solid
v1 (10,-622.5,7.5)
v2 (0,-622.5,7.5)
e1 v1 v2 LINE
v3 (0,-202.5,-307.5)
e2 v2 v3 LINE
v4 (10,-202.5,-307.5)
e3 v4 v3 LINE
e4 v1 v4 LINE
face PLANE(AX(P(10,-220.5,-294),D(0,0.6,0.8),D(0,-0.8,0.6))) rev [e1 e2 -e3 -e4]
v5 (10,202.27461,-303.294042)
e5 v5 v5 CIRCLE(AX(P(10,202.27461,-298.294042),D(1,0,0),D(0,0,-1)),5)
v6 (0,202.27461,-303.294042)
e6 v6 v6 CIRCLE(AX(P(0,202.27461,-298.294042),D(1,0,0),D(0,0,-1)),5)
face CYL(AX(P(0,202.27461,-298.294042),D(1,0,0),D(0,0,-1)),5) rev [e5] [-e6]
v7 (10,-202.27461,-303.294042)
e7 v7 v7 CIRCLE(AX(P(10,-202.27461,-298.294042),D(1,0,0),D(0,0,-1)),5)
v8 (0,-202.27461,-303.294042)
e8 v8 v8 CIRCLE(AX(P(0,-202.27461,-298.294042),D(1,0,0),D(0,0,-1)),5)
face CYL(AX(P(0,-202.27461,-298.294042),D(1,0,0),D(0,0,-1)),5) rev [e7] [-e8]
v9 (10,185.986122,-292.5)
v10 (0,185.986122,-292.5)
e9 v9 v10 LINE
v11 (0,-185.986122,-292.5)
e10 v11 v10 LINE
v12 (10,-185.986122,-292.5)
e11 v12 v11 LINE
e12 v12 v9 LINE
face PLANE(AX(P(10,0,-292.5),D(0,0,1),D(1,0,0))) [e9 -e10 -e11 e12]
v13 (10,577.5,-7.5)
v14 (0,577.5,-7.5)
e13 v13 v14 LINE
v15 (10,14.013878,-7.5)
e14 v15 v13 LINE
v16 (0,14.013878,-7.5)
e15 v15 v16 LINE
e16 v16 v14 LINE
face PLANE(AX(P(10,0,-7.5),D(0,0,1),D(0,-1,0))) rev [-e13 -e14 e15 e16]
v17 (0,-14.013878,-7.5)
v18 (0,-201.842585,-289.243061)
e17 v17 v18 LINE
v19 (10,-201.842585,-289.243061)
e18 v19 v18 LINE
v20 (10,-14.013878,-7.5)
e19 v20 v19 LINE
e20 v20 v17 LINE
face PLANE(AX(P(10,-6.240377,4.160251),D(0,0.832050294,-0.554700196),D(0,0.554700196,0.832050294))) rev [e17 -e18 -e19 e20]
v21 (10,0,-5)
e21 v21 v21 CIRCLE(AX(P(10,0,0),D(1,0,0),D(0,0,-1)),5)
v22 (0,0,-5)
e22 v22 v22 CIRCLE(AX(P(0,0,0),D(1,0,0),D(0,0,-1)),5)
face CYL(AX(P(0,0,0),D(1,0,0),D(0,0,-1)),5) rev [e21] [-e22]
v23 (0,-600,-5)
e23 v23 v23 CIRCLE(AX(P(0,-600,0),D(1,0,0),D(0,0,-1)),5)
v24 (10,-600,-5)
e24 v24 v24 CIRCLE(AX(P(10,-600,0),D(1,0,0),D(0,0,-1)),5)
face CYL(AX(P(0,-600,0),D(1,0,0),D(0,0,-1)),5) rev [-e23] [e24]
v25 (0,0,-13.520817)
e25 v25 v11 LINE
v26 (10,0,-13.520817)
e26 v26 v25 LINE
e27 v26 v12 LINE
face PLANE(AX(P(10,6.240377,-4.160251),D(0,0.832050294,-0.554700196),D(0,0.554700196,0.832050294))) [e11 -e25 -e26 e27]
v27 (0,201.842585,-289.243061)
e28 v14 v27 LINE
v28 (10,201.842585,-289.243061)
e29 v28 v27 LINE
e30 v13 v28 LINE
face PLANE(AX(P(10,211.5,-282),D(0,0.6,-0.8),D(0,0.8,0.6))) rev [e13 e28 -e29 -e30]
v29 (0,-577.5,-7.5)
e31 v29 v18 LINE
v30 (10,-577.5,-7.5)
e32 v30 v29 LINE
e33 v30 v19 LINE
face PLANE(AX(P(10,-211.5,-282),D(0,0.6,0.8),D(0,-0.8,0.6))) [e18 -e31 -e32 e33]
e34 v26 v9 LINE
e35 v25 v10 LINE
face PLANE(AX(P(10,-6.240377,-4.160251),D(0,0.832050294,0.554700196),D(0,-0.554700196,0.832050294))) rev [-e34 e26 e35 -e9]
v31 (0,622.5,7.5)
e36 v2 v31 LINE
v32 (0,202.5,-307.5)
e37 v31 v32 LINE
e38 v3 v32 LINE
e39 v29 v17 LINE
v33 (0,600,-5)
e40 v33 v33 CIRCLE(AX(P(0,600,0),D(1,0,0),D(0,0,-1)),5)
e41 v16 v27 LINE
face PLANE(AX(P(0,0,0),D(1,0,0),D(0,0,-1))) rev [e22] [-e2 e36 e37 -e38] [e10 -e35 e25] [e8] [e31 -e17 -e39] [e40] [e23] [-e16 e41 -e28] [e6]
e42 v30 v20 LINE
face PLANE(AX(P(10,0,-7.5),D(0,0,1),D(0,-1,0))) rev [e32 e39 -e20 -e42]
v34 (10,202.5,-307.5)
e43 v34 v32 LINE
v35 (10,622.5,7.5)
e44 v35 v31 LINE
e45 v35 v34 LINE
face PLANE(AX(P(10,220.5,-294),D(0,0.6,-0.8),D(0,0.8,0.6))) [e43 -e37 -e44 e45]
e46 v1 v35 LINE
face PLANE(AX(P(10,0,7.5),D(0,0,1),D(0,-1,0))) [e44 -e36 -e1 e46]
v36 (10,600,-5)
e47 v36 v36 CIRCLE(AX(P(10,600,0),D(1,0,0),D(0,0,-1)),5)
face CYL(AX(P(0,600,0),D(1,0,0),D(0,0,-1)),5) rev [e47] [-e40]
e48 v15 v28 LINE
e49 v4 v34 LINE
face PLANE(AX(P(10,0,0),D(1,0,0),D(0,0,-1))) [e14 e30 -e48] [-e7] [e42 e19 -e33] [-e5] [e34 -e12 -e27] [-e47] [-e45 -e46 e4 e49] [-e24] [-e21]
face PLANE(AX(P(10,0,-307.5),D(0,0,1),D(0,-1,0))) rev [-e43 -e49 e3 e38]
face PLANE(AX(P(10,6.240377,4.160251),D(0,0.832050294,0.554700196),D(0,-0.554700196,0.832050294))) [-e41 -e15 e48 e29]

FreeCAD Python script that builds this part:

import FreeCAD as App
import Part
import Sketcher

V = App.Vector

doc = App.newDocument("Part")
body = doc.addObject("PartDesign::Body", "Body")

# Sketch on YZ plane
sketch1 = body.newObject("Sketcher::SketchObject", "Sketch")
sketch1.AttachmentSupport = (doc.getObject("YZ_Plane"), [""])
sketch1.MapMode = "FlatFace"
sketch1.addGeometry(Part.LineSegment(V(-202, -308, 0), V(202, -308, 0)), False)
sketch1.addGeometry(Part.LineSegment(V(202, -308, 0), V(622, 8, 0)), False)
sketch1.addGeometry(Part.LineSegment(V(622, 8, 0), V(-622, 8, 0)), False)
sketch1.addGeometry(Part.LineSegment(V(-622, 8, 0), V(-202, -308, 0)), False)
sketch1.addGeometry(Part.LineSegment(V(-578, -8, 0), V(-14, -8, 0)), False)
sketch1.addGeometry(Part.LineSegment(V(-14, -8, 0), V(-202, -289, 0)), False)
sketch1.addGeometry(Part.LineSegment(V(-202, -289, 0), V(-578, -8, 0)), False)
sketch1.addGeometry(Part.LineSegment(V(0, -14, 0), V(186, -292, 0)), False)
sketch1.addGeometry(Part.LineSegment(V(186, -292, 0), V(-186, -292, 0)), False)
sketch1.addGeometry(Part.LineSegment(V(-186, -292, 0), V(0, -14, 0)), False)
sketch1.addGeometry(Part.LineSegment(V(202, -289, 0), V(14, -8, 0)), False)
sketch1.addGeometry(Part.LineSegment(V(14, -8, 0), V(578, -8, 0)), False)
sketch1.addGeometry(Part.LineSegment(V(578, -8, 0), V(202, -289, 0)), False)
sketch1.addConstraint(Sketcher.Constraint("Coincident", 0, 2, 1, 1))
sketch1.addConstraint(Sketcher.Constraint("Coincident", 1, 2, 2, 1))
sketch1.addConstraint(Sketcher.Constraint("Coincident", 2, 2, 3, 1))
sketch1.addConstraint(Sketcher.Constraint("Coincident", 3, 2, 0, 1))
sketch1.addConstraint(Sketcher.Constraint("Coincident", 4, 2, 5, 1))
sketch1.addConstraint(Sketcher.Constraint("Coincident", 5, 2, 6, 1))
sketch1.addConstraint(Sketcher.Constraint("Coincident", 6, 2, 4, 1))
sketch1.addConstraint(Sketcher.Constraint("Coincident", 7, 2, 8, 1))
sketch1.addConstraint(Sketcher.Constraint("Coincident", 8, 2, 9, 1))
sketch1.addConstraint(Sketcher.Constraint("Coincident", 9, 2, 7, 1))
sketch1.addConstraint(Sketcher.Constraint("Coincident", 10, 2, 11, 1))
sketch1.addConstraint(Sketcher.Constraint("Coincident", 11, 2, 12, 1))
sketch1.addConstraint(Sketcher.Constraint("Coincident", 12, 2, 10, 1))
sketch1.addConstraint(Sketcher.Constraint("Horizontal", 0))
sketch1.addConstraint(Sketcher.Constraint("Horizontal", 2))
sketch1.addConstraint(Sketcher.Constraint("Horizontal", 4))
sketch1.addConstraint(Sketcher.Constraint("Horizontal", 8))
sketch1.addConstraint(Sketcher.Constraint("Horizontal", 11))
sketch1.addConstraint(Sketcher.Constraint("Symmetric", 4, 2, 10, 2, -2))
sketch1.addConstraint(Sketcher.Constraint("Symmetric", 5, 2, 12, 2, -2))
sketch1.addConstraint(Sketcher.Constraint("PointOnObject", 9, 2, -2))
sketch1.addConstraint(Sketcher.Constraint("Parallel", 3, 6))
sketch1.addConstraint(Sketcher.Constraint("Parallel", 5, 9))
sketch1.addConstraint(Sketcher.Constraint("Parallel", 7, 10))
sketch1.addConstraint(Sketcher.Constraint("Parallel", 1, 12))
sketch1.addConstraint(Sketcher.Constraint("Equal", 4, 11))
sketch1.addConstraint(Sketcher.Constraint("DistanceX", 0, 1, 0, 2, 405.0))
sketch1.addConstraint(Sketcher.Constraint("DistanceX", 2, 2, 2, 1, 1245.0))
sketch1.addConstraint(Sketcher.Constraint("Distance", 1, 525.0))
sketch1.addConstraint(Sketcher.Constraint("DistanceY", 3, 2, 4, 2, 300.0))
sketch1.addConstraint(Sketcher.Constraint("DistanceX", 2, 2, 6, 2, 45.0))
sketch1.addConstraint(Sketcher.Constraint("DistanceY", 0, 2, 7, 2, 15.0))
sketch1.addConstraint(Sketcher.Constraint("DistanceX", 4, 2, 7, 2, 200.0))
sketch1.addConstraint(Sketcher.Constraint("DistanceX", 11, 2, 1, 2, 45.0))
sketch1.addConstraint(Sketcher.Constraint("DistanceY", 0, 2, -1, 1, 307.5))
sketch1.addConstraint(Sketcher.Constraint("DistanceX", 4, 1, 4, 2, 563.486122))
sketch1.addConstraint(Sketcher.Constraint("Distance", 6, 469.571768))
pad1 = body.newObject("PartDesign::Pad", "Pad")
pad1.Profile = sketch1
pad1.Length = 10

# Sketch on YZ plane
sketch2 = body.newObject("Sketcher::SketchObject", "Sketch001")
sketch2.AttachmentSupport = (doc.getObject("YZ_Plane"), [""])
sketch2.MapMode = "FlatFace"
sketch2.AttachmentOffset = App.Placement(V(0, 0, 10), App.Rotation())
sketch2.addGeometry(Part.Circle(V(0, 0, 0), V(0, 0, 1), 5), False)
sketch2.addGeometry(Part.Circle(V(-600, 0, 0), V(0, 0, 1), 5), False)
sketch2.addGeometry(Part.Circle(V(-202, -298, 0), V(0, 0, 1), 5), False)
sketch2.addGeometry(Part.Circle(V(202, -298, 0), V(0, 0, 1), 5), False)
sketch2.addGeometry(Part.Circle(V(600, 0, 0), V(0, 0, 1), 5), False)
sketch2.addConstraint(Sketcher.Constraint("Coincident", 0, 3, -1, 1))
sketch2.addConstraint(Sketcher.Constraint("Equal", 0, 1))
sketch2.addConstraint(Sketcher.Constraint("Equal", 1, 2))
sketch2.addConstraint(Sketcher.Constraint("Equal", 2, 3))
sketch2.addConstraint(Sketcher.Constraint("Equal", 3, 4))
sketch2.addConstraint(Sketcher.Constraint("Symmetric", 1, 3, 4, 3, -1, 1))
sketch2.addConstraint(Sketcher.Constraint("Symmetric", 2, 3, 3, 3, -2))
sketch2.addConstraint(Sketcher.Constraint("PointOnObject", 1, 3, -1))
sketch2.addConstraint(Sketcher.Constraint("Diameter", 0, 10.0))
sketch2.addConstraint(Sketcher.Constraint("DistanceX", 1, 3, -1, 1, 600.0))
sketch2.addConstraint(Sketcher.Constraint("DistanceX", 2, 3, -1, 1, 202.27461))
sketch2.addConstraint(Sketcher.Constraint("DistanceY", 2, 3, -1, 1, 298.294042))
pocket1 = body.newObject("PartDesign::Pocket", "Pocket")
pocket1.Profile = sketch2
pocket1.Length = 10

doc.recompute()
